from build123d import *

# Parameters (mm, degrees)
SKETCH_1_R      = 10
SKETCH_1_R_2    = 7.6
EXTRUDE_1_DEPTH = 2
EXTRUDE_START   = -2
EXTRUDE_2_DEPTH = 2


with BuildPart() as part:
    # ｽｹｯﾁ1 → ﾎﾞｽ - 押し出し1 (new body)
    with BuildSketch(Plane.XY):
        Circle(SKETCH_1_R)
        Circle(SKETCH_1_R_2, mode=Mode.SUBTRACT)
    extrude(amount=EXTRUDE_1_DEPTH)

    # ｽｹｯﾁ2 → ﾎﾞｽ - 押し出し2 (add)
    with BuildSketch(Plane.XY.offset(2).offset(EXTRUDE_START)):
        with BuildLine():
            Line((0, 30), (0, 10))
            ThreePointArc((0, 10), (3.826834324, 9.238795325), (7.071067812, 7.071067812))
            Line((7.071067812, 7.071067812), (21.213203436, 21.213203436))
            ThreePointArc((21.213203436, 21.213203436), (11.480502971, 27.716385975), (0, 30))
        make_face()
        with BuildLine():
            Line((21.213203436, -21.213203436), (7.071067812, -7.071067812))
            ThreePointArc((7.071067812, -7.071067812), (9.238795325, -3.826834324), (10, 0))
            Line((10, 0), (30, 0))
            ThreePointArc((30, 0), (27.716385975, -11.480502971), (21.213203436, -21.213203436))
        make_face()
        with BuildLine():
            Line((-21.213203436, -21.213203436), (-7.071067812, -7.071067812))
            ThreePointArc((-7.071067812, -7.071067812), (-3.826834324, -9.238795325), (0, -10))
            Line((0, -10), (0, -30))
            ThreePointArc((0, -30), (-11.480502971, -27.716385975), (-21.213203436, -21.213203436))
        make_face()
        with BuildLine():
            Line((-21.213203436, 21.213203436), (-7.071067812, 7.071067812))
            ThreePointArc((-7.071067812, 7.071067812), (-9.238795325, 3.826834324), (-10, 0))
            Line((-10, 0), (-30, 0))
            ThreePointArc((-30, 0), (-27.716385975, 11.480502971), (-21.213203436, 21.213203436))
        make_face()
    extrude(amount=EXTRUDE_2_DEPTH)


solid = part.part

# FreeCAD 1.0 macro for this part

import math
import FreeCAD as App
import Part
import Sketcher
Q = App.Units.Quantity

doc = App.newDocument("Part")
body = doc.addObject("PartDesign::Body", "Body")

sketch1 = body.newObject("Sketcher::SketchObject", "Sketch")
sketch1.AttachmentSupport = (doc.getObject("XY_Plane"), [""])
sketch1.MapMode = "FlatFace"
sketch1.addGeometry(Part.Circle(App.Vector(0, 0, 0), App.Vector(0, 0, 1), 10), False)
sketch1.addGeometry(Part.Circle(App.Vector(0, 0, 0), App.Vector(0, 0, 1), 7.6), False)
sketch1.addConstraint(Sketcher.Constraint("Coincident", 0, 3, -1, 1))
sketch1.addConstraint(Sketcher.Constraint("Coincident", 1, 3, -1, 1))
sketch1.addConstraint(Sketcher.Constraint("Diameter", 0, Q("20 mm")))
sketch1.addConstraint(Sketcher.Constraint("Diameter", 1, Q("15.2 mm")))
pad1 = body.newObject("PartDesign::Pad", "Pad")
pad1.Profile = sketch1
pad1.Length = 2

sketch2 = body.newObject("Sketcher::SketchObject", "Sketch001")
sketch2.AttachmentSupport = (doc.getObject("XY_Plane"), [""])
sketch2.MapMode = "FlatFace"
sketch2.addGeometry(Part.LineSegment(App.Vector(0, 30, 0), App.Vector(0, 10, 0)), False)
sketch2.addGeometry(Part.ArcOfCircle(Part.Circle(App.Vector(0, 0, 0), App.Vector(0, 0, 1), 10), math.radians(45), math.radians(90)), False)
sketch2.addGeometry(Part.LineSegment(App.Vector(7.071068, 7.071068, 0), App.Vector(21.213203, 21.213203, 0)), False)
sketch2.addGeometry(Part.ArcOfCircle(Part.Circle(App.Vector(0, 0, 0), App.Vector(0, 0, 1), 30), math.radians(45), math.radians(90)), False)
sketch2.addGeometry(Part.LineSegment(App.Vector(7.071068, -7.071068, 0), App.Vector(21.213203, -21.213203, 0)), False)
sketch2.addGeometry(Part.ArcOfCircle(Part.Circle(App.Vector(0, 0, 0), App.Vector(0, 0, 1), 30), math.radians(-45), math.radians(0)), False)
sketch2.addGeometry(Part.LineSegment(App.Vector(30, 0, 0), App.Vector(10, 0, 0)), False)
sketch2.addGeometry(Part.ArcOfCircle(Part.Circle(App.Vector(0, 0, 0), App.Vector(0, 0, 1), 10), math.radians(-45), math.radians(0)), False)
sketch2.addGeometry(Part.LineSegment(App.Vector(-7.071068, -7.071068, 0), App.Vector(-21.213203, -21.213203, 0)), False)
sketch2.addGeometry(Part.ArcOfCircle(Part.Circle(App.Vector(0, 0, 0), App.Vector(0, 0, 1), 30), math.radians(-135), math.radians(-90)), False)
sketch2.addGeometry(Part.LineSegment(App.Vector(0, -30, 0), App.Vector(0, -10, 0)), False)
sketch2.addGeometry(Part.ArcOfCircle(Part.Circle(App.Vector(0, 0, 0), App.Vector(0, 0, 1), 10), math.radians(-135), math.radians(-90)), False)
sketch2.addGeometry(Part.LineSegment(App.Vector(-7.071068, 7.071068, 0), App.Vector(-21.213203, 21.213203, 0)), False)
sketch2.addGeometry(Part.ArcOfCircle(Part.Circle(App.Vector(0, 0, 0), App.Vector(0, 0, 1), 30), math.radians(135), math.radians(180)), False)
sketch2.addGeometry(Part.LineSegment(App.Vector(-30, 0, 0), App.Vector(-10, 0, 0)), False)
sketch2.addGeometry(Part.ArcOfCircle(Part.Circle(App.Vector(0, 0, 0), App.Vector(0, 0, 1), 10), math.radians(135), math.radians(180)), False)
sketch2.addConstraint(Sketcher.Constraint("Coincident", 0, 2, 1, 2))
sketch2.addConstraint(Sketcher.Constraint("Coincident", 1, 1, 2, 1))
sketch2.addConstraint(Sketcher.Constraint("Coincident", 2, 2, 3, 1))
sketch2.addConstraint(Sketcher.Constraint("Coincident", 3, 2, 0, 1))
sketch2.addConstraint(Sketcher.Constraint("Coincident", 4, 2, 5, 1))
sketch2.addConstraint(Sketcher.Constraint("Coincident", 5, 2, 6, 1))
sketch2.addConstraint(Sketcher.Constraint("Coincident", 6, 2, 7, 2))
sketch2.addConstraint(Sketcher.Constraint("Coincident", 7, 1, 4, 1))
sketch2.addConstraint(Sketcher.Constraint("Coincident", 8, 2, 9, 1))
sketch2.addConstraint(Sketcher.Constraint("Coincident", 9, 2, 10, 1))
sketch2.addConstraint(Sketcher.Constraint("Coincident", 10, 2, 11, 2))
sketch2.addConstraint(Sketcher.Constraint("Coincident", 11, 1, 8, 1))
sketch2.addConstraint(Sketcher.Constraint("Coincident", 12, 2, 13, 1))
sketch2.addConstraint(Sketcher.Constraint("Coincident", 13, 2, 14, 1))
sketch2.addConstraint(Sketcher.Constraint("Coincident", 14, 2, 15, 2))
sketch2.addConstraint(Sketcher.Constraint("Coincident", 15, 1, 12, 1))
sketch2.addConstraint(Sketcher.Constraint("Vertical", 0))
sketch2.addConstraint(Sketcher.Constraint("Horizontal", 6))
sketch2.addConstraint(Sketcher.Constraint("Vertical", 10))
sketch2.addConstraint(Sketcher.Constraint("Horizontal", 14))
sketch2.addConstraint(Sketcher.Constraint("Coincident", 1, 3, -1, 1))
sketch2.addConstraint(Sketcher.Constraint("Coincident", 3, 3, -1, 1))
sketch2.addConstraint(Sketcher.Constraint("Coincident", 5, 3, -1, 1))
sketch2.addConstraint(Sketcher.Constraint("Coincident", 7, 3, -1, 1))
sketch2.addConstraint(Sketcher.Constraint("Coincident", 9, 3, -1, 1))
sketch2.addConstraint(Sketcher.Constraint("Coincident", 11, 3, -1, 1))
sketch2.addConstraint(Sketcher.Constraint("Coincident", 13, 3, -1, 1))
sketch2.addConstraint(Sketcher.Constraint("Coincident", 15, 3, -1, 1))
sketch2.addConstraint(Sketcher.Constraint("Equal", 3, 5))
sketch2.addConstraint(Sketcher.Constraint("Equal", 1, 7))
sketch2.addConstraint(Sketcher.Constraint("Equal", 5, 9))
sketch2.addConstraint(Sketcher.Constraint("Equal", 7, 11))
sketch2.addConstraint(Sketcher.Constraint("Equal", 9, 13))
sketch2.addConstraint(Sketcher.Constraint("Equal", 11, 15))
sketch2.addConstraint(Sketcher.Constraint("PointOnObject", 0, 2, -2))
sketch2.addConstraint(Sketcher.Constraint("PointOnObject", 5, 2, -1))
sketch2.addConstraint(Sketcher.Constraint("PointOnObject", 9, 2, -2))
sketch2.addConstraint(Sketcher.Constraint("PointOnObject", 13, 2, -1))
sketch2.addConstraint(Sketcher.Constraint("Perpendicular", 2, 4))
sketch2.addConstraint(Sketcher.Constraint("Perpendicular", 4, 8))
sketch2.addConstraint(Sketcher.Constraint("Perpendicular", 8, 12))
sketch2.addConstraint(Sketcher.Constraint("Horizontal", 4, 2, 8, 2))
sketch2.addConstraint(Sketcher.Constraint("Horizontal", 7, 1, 11, 1))
sketch2.addConstraint(Sketcher.Constraint("Horizontal", 2, 2, 12, 2))
sketch2.addConstraint(Sketcher.Constraint("Vertical", 2, 2, 4, 2))
sketch2.addConstraint(Sketcher.Constraint("Radius", 1, Q("10 mm")))
sketch2.addConstraint(Sketcher.Constraint("Radius", 3, Q("30 mm")))
sketch2.addConstraint(Sketcher.Constraint("DistanceX", -1, 1, 1, 1, Q("7.071068 mm")))
pad2 = body.newObject("PartDesign::Pad", "Pad001")
pad2.Profile = sketch2
pad2.Length = 2

doc.recompute()
